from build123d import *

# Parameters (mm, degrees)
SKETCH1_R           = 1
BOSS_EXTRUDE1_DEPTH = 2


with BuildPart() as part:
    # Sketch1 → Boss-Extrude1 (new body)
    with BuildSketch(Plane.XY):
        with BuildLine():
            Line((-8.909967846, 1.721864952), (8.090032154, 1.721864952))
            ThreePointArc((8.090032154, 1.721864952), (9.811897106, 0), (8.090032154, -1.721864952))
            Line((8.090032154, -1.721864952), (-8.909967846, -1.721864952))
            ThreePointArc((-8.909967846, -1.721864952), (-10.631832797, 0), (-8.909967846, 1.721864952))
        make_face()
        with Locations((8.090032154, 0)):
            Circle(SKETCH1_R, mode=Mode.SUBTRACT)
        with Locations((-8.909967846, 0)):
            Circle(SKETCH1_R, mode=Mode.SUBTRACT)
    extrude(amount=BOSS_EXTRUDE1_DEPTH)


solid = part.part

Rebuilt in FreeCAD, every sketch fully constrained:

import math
import FreeCAD as App
import Part
import Sketcher

V = App.Vector
Q = App.Units.Quantity

doc = App.newDocument("Part")
body = doc.addObject("PartDesign::Body", "Body")

sketch1 = doc.addObject("Sketcher::SketchObject", "Sketch")
body.addObject(sketch1)
sketch1.AttachmentSupport = (doc.XY_Plane, [""])
sketch1.MapMode = "FlatFace"
sketch1.addGeometry(Part.LineSegment(V(8.1, 1.7, 0), V(-8.9, 1.7, 0)), False)
sketch1.addGeometry(Part.ArcOfCircle(Part.Circle(V(-8.9, 0, 0), V(0, 0, 1), 1.7), math.radians(90), math.radians(270)), False)
sketch1.addGeometry(Part.LineSegment(V(-8.9, -1.7, 0), V(8.1, -1.7, 0)), False)
sketch1.addGeometry(Part.ArcOfCircle(Part.Circle(V(8.1, 0, 0), V(0, 0, 1), 1.7), math.radians(-90), math.radians(90)), False)
sketch1.addGeometry(Part.Circle(V(8.1, 0, 0), V(0, 0, 1), 1), False)
sketch1.addGeometry(Part.Circle(V(-8.9, 0, 0), V(0, 0, 1), 1), False)
sketch1.addConstraint(Sketcher.Constraint("Tangent", 0, 2, 1, 1))
sketch1.addConstraint(Sketcher.Constraint("Tangent", 1, 2, 2, 1))
sketch1.addConstraint(Sketcher.Constraint("Tangent", 2, 2, 3, 1))
sketch1.addConstraint(Sketcher.Constraint("Tangent", 3, 2, 0, 1))
sketch1.addConstraint(Sketcher.Constraint("Horizontal", 0))
sketch1.addConstraint(Sketcher.Constraint("Horizontal", 2))
sketch1.addConstraint(Sketcher.Constraint("Coincident", 4, 3, 3, 3))
sketch1.addConstraint(Sketcher.Constraint("Coincident", 5, 3, 1, 3))
sketch1.addConstraint(Sketcher.Constraint("Equal", 4, 5))
sketch1.addConstraint(Sketcher.Constraint("PointOnObject", 1, 3, -1))
sketch1.addConstraint(Sketcher.Constraint("Diameter", 4, Q("2 mm")))
sketch1.addConstraint(Sketcher.Constraint("DistanceX", 0, 2, 0, 1, Q("17 mm")))
sketch1.addConstraint(Sketcher.Constraint("Radius", 1, Q("1.721865 mm")))
sketch1.addConstraint(Sketcher.Constraint("DistanceX", 1, 3, -1, 1, Q("8.909968 mm")))
pad1 = doc.addObject("PartDesign::Pad", "Pad")
body.addObject(pad1)
pad1.Profile = sketch1
pad1.Length = 2

doc.recompute()
